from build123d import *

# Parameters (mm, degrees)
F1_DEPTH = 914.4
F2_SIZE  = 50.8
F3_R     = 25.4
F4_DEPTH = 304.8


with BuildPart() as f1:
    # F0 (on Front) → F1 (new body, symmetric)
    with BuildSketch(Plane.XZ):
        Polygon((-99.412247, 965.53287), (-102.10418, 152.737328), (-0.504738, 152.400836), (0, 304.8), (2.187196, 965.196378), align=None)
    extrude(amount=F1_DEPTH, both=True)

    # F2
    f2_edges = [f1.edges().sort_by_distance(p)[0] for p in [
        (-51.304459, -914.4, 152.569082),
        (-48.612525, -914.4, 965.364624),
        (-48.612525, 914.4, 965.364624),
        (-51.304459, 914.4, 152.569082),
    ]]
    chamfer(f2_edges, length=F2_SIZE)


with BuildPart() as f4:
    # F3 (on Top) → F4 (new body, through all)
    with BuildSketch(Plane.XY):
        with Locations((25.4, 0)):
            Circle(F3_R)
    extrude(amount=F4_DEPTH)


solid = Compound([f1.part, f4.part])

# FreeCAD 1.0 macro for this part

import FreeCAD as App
import Part
import Sketcher
from FreeCAD import Vector
Q = App.Units.Quantity


def edges_at(feature, points):
    """Names of the edges that pass closest to the given points."""
    edges = feature.Shape.Edges
    near = lambda p: min(range(len(edges)), key=lambda i: edges[i].distToShape(Part.Vertex(*p))[0])
    return sorted({f"Edge{near(p) + 1}" for p in points})


def add_polygon(sketch, points):
    """Adds a closed chain of lines whose ends are joined by coincident constraints."""
    first, n = sketch.GeometryCount, len(points)
    for a, b in zip(points, points[1:] + points[:1]):
        sketch.addGeometry(Part.LineSegment(App.Vector(*a, 0), App.Vector(*b, 0)), False)
    for i in range(n):
        sketch.addConstraint(Sketcher.Constraint("Coincident", first + i, 2, first + (i + 1) % n, 1))

doc = App.newDocument("Part")
body = doc.addObject("PartDesign::Body", "Body")

sketch1 = body.newObject("Sketcher::SketchObject", "Sketch")
sketch1.AttachmentSupport = (doc.getObject("XZ_Plane"), [""])
sketch1.MapMode = "FlatFace"
add_polygon(sketch1, [(-99, 966), (-102, 153), (-1, 152), (0, 305), (2, 965)])
sketch1.addConstraint(Sketcher.Constraint("PointOnObject", 2, 2, -2))
sketch1.addConstraint(Sketcher.Constraint("Perpendicular", 0, 1))
sketch1.addConstraint(Sketcher.Constraint("Perpendicular", 1, 2))
sketch1.addConstraint(Sketcher.Constraint("Parallel", 2, 3))
sketch1.addConstraint(Sketcher.Constraint("Perpendicular", 3, 4))
sketch1.addConstraint(Sketcher.Constraint("Distance", 0, Q("32 in")))
sketch1.addConstraint(Sketcher.Constraint("Distance", 1, Q("4 in")))
sketch1.addConstraint(Sketcher.Constraint("Distance", 2, Q("6 in")))
sketch1.addConstraint(Sketcher.Constraint("DistanceY", -1, 1, 2, 2, Q("12 in")))
sketch1.addConstraint(Sketcher.Constraint("DistanceX", 0, 2, -1, 1, 102.10418))
pad1 = body.newObject("PartDesign::Pad", "Pad")
pad1.Profile = sketch1
pad1.Length = Q("72 in")
pad1.Midplane = True
doc.recompute()

chamfer = body.newObject("PartDesign::Chamfer", "Chamfer")
chamfer.Base = (pad1, edges_at(pad1, [
    (-51.304, -914.4, 152.569),
    (-48.613, -914.4, 965.365),
    (-48.613, 914.4, 965.365),
    (-51.304, 914.4, 152.569),
]))
chamfer.Size = Q("2 in")
body2 = doc.addObject("PartDesign::Body", "Body001")

sketch2 = body2.newObject("Sketcher::SketchObject", "Sketch001")
sketch2.AttachmentSupport = (doc.getObject("XY_Plane001"), [""])
sketch2.MapMode = "FlatFace"
sketch2.addGeometry(Part.Circle(Vector(25, 0, 0), Vector(0, 0, 1), 25), False)
sketch2.addConstraint(Sketcher.Constraint("PointOnObject", 0, 3, -1))
sketch2.addConstraint(Sketcher.Constraint("Diameter", 0, Q("2 in")))
sketch2.addConstraint(Sketcher.Constraint("DistanceX", -1, 1, 0, 3, Q("1 in")))
pad2 = body2.newObject("PartDesign::Pad", "Pad001")
pad2.Profile = sketch2
pad2.Length = Q("12 in")

doc.recompute()
